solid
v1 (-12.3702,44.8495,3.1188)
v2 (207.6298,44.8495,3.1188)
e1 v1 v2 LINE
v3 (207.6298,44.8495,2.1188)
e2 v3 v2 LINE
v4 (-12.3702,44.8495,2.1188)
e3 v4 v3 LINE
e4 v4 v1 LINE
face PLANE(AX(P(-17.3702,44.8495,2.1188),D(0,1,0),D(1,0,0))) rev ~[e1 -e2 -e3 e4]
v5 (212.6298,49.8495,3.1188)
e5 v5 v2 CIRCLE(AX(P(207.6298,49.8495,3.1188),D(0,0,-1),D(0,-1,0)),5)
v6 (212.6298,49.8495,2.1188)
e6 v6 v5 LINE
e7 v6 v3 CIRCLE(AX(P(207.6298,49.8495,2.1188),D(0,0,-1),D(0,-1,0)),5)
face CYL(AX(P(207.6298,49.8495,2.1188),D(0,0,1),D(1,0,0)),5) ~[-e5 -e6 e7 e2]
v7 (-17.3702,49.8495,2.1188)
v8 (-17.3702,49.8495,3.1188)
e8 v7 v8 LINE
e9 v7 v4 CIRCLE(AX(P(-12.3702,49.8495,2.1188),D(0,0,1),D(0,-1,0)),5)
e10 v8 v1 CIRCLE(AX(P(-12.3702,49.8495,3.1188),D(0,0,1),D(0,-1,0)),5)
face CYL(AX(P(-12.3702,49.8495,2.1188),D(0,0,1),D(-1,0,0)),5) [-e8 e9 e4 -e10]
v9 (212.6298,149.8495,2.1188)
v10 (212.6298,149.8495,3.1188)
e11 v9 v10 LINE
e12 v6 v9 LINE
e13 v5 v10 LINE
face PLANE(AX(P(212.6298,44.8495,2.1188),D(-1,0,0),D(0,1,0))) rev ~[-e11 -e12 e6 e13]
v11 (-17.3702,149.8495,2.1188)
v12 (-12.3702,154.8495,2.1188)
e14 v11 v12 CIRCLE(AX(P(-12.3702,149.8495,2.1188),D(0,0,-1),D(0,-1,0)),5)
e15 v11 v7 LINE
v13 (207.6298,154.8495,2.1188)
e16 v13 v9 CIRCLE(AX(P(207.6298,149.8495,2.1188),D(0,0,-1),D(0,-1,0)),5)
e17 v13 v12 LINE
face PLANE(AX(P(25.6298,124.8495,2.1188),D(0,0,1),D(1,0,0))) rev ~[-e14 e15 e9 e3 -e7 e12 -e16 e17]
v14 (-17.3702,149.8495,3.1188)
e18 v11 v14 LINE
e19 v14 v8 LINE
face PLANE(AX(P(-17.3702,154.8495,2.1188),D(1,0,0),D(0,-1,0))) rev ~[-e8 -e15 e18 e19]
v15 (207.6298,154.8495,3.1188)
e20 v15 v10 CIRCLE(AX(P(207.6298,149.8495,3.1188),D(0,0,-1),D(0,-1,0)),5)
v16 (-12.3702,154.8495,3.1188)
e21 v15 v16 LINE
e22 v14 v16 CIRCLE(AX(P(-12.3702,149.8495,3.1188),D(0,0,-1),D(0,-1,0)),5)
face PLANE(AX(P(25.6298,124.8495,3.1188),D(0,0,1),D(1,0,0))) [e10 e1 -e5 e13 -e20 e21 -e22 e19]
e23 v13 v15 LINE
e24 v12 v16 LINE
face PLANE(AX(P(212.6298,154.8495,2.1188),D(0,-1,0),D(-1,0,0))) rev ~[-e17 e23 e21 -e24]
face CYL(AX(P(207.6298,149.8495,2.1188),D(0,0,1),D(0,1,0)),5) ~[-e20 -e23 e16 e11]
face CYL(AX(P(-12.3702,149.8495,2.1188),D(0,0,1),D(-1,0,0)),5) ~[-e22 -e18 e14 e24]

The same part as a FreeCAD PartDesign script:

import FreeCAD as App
import Part
import Sketcher

V = App.Vector
Q = App.Units.Quantity


def edges_at(feature, points):
    """Names of the edges that pass closest to the given points."""
    edges = feature.Shape.Edges
    near = lambda p: min(range(len(edges)), key=lambda i: edges[i].distToShape(Part.Vertex(*p))[0])
    return sorted({f"Edge{near(p) + 1}" for p in points})


def add_polygon(sketch, points):
    """Adds a closed chain of lines whose ends are joined by coincident constraints."""
    first, n = sketch.GeometryCount, len(points)
    for a, b in zip(points, points[1:] + points[:1]):
        sketch.addGeometry(Part.LineSegment(App.Vector(*a, 0), App.Vector(*b, 0)), False)
    for i in range(n):
        sketch.addConstraint(Sketcher.Constraint("Coincident", first + i, 2, first + (i + 1) % n, 1))

doc = App.newDocument("Part")
params = doc.addObject("Spreadsheet::Sheet", "Params")
for row, (alias, value) in enumerate([
    ("sketch1_width", "230 mm"),
    ("sketch1_height", "110 mm"),
    ("pad1_length", "1 mm"),
    ("fillet_radius", "5 mm"),
], start=1):
    params.set(f"A{row}", alias)
    params.set(f"B{row}", "=" + value)
    params.setAlias(f"B{row}", alias)

body = doc.addObject("PartDesign::Body", "Body")

sketch1 = body.newObject("Sketcher::SketchObject", "Sketch")
sketch1.AttachmentSupport = (doc.getObject("XY_Plane"), [""])
sketch1.MapMode = "FlatFace"
sketch1.AttachmentOffset = App.Placement(V(0, 0, 2.1188), App.Rotation())
add_polygon(sketch1, [(-17.3702, 154.8495), (-17.3702, 44.8495), (212.6298, 44.8495), (212.6298, 154.8495)])
sketch1.addConstraint([
    Sketcher.Constraint("Vertical", 0),
    Sketcher.Constraint("Horizontal", 1),
    Sketcher.Constraint("Vertical", 2),
    Sketcher.Constraint("Horizontal", 3),
    Sketcher.Constraint("DistanceX", 1, 1, 1, 2, Q("230 mm")),
    Sketcher.Constraint("DistanceY", 0, 2, 0, 1, Q("110 mm")),
    Sketcher.Constraint("DistanceX", 0, 2, -1, 1, Q("17.3702 mm")),
    Sketcher.Constraint("DistanceY", -1, 1, 0, 2, Q("44.8495 mm")),
])
sketch1.setExpression("Constraints[8]", "Params.sketch1_width")
sketch1.setExpression("Constraints[9]", "Params.sketch1_height")
pad1 = body.newObject("PartDesign::Pad", "Pad")
pad1.Profile = sketch1
pad1.setExpression("Length", "Params.pad1_length")
doc.recompute()

fillet = body.newObject("PartDesign::Fillet", "Fillet")
fillet.Base = (pad1, edges_at(pad1, [
    (212.63, 154.85, 2.619),
    (-17.37, 154.85, 2.619),
    (-17.37, 44.849, 2.619),
    (212.63, 44.849, 2.619),
]))
fillet.setExpression("Radius", "Params.fillet_radius")

doc.recompute()
